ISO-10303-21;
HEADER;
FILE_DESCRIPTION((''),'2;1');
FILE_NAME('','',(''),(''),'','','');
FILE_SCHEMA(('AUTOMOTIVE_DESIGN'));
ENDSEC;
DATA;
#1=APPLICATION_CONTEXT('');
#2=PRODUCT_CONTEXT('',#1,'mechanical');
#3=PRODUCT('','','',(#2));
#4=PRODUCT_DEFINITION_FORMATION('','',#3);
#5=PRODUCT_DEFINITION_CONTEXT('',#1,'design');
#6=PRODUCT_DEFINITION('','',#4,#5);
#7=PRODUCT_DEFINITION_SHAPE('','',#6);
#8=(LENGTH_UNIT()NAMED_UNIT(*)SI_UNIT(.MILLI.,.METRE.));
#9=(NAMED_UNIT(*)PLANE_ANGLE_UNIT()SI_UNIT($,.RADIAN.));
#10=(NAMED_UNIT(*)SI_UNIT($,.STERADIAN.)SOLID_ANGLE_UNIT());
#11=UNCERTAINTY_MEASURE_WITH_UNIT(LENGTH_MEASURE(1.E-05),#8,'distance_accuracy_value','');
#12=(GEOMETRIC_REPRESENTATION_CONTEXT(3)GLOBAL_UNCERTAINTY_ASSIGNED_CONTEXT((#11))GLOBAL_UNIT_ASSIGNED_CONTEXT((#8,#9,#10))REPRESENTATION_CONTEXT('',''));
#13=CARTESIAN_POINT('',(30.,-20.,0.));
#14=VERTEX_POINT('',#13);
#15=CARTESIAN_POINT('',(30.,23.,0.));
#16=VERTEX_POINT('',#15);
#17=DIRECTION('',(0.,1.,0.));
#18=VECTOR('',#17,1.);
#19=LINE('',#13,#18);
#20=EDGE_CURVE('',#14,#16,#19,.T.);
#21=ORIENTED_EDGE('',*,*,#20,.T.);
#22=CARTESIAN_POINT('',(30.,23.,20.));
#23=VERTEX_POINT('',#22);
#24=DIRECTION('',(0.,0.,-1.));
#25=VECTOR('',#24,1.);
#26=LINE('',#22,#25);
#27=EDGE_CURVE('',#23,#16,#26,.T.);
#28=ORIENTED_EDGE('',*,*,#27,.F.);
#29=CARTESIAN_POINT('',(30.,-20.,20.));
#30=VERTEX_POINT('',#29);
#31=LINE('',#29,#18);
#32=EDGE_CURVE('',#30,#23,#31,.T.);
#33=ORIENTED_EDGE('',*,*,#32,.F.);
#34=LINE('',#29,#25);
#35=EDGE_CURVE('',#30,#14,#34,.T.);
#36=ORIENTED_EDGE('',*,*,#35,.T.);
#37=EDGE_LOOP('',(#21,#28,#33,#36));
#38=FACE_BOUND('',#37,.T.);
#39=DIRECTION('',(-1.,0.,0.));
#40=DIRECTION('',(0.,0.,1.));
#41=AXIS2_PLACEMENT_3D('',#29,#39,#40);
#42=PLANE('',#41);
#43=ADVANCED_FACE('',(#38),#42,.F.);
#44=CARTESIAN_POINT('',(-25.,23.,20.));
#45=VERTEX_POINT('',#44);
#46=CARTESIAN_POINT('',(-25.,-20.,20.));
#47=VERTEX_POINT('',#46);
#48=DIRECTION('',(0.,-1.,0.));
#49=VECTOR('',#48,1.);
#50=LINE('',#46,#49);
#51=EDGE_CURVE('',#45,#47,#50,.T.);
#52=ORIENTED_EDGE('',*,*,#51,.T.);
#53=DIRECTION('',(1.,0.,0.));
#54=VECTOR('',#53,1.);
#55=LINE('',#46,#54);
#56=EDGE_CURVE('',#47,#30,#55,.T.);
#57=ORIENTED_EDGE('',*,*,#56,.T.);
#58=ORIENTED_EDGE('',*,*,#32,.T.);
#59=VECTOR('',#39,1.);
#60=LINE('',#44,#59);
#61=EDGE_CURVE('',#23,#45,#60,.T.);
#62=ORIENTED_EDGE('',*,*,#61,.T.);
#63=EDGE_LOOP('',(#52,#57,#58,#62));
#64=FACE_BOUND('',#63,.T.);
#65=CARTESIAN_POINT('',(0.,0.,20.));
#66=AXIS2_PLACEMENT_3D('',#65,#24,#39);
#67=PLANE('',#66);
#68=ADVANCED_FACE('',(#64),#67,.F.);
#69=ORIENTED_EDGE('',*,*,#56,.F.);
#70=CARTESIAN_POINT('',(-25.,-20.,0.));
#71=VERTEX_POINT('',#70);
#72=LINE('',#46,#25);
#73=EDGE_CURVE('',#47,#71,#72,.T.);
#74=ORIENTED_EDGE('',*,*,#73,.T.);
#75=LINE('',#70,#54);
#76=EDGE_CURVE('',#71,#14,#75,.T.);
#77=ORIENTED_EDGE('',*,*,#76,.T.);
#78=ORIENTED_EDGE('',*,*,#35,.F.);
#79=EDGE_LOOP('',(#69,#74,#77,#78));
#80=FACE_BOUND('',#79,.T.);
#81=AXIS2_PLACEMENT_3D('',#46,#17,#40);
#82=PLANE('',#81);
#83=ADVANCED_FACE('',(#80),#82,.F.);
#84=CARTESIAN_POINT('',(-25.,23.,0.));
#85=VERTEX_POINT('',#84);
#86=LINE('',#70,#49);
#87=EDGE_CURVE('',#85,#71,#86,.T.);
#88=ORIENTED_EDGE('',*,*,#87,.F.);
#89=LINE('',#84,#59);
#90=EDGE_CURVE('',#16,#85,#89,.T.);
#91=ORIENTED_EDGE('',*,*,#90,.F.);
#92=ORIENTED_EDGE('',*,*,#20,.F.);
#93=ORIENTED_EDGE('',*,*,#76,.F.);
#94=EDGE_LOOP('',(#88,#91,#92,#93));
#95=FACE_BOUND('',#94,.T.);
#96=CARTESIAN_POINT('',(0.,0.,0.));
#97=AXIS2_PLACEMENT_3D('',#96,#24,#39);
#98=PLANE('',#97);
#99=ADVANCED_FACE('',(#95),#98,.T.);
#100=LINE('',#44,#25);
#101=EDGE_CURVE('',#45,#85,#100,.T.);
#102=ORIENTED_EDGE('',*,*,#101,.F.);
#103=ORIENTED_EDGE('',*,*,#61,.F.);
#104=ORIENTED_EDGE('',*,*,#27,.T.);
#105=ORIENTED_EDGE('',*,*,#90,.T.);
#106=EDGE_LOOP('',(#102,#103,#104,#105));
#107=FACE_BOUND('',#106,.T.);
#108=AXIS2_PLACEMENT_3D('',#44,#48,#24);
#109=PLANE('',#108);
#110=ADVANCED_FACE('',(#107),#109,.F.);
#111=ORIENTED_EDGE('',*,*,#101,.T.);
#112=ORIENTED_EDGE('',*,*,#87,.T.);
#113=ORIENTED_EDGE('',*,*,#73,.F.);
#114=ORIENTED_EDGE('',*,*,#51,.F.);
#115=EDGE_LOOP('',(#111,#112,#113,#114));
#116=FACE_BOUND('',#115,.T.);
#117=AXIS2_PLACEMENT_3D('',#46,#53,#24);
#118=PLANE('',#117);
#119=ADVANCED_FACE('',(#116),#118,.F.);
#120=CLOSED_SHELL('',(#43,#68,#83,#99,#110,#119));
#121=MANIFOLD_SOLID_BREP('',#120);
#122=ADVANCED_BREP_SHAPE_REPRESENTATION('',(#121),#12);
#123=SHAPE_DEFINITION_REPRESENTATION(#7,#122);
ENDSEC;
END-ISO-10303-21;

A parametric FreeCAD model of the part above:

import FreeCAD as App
import Part
import Sketcher
from FreeCAD import Vector


def add_polygon(sketch, points):
    """Adds a closed chain of lines whose ends are joined by coincident constraints."""
    first, n = sketch.GeometryCount, len(points)
    for a, b in zip(points, points[1:] + points[:1]):
        sketch.addGeometry(Part.LineSegment(App.Vector(*a, 0), App.Vector(*b, 0)), False)
    for i in range(n):
        sketch.addConstraint(Sketcher.Constraint("Coincident", first + i, 2, first + (i + 1) % n, 1))

doc = App.newDocument("Part")
body = doc.addObject("PartDesign::Body", "Body")

# Sketch on XY plane
sketch1 = body.newObject("Sketcher::SketchObject", "Sketch")
sketch1.AttachmentSupport = (doc.getObject("XY_Plane"), [""])
sketch1.MapMode = "FlatFace"
add_polygon(sketch1, [(-25, 23), (-25, -20), (30, -20), (30, 23)])  # lines 0-3
sketch1.addConstraint([
    Sketcher.Constraint("Vertical", 0),
    Sketcher.Constraint("Horizontal", 1),
    Sketcher.Constraint("Vertical", 2),
    Sketcher.Constraint("Horizontal", 3),
    Sketcher.Constraint("DistanceX", 1, 1, 1, 2, 55.0),
    Sketcher.Constraint("DistanceY", 0, 2, 0, 1, 43.0),
    Sketcher.Constraint("DistanceX", 0, 2, -1, 1, 25.0),
    Sketcher.Constraint("DistanceY", 0, 2, -1, 1, 20.0),
])
pad1 = body.newObject("PartDesign::Pad", "Pad")
pad1.Profile = sketch1
pad1.Length = 20

doc.recompute()
